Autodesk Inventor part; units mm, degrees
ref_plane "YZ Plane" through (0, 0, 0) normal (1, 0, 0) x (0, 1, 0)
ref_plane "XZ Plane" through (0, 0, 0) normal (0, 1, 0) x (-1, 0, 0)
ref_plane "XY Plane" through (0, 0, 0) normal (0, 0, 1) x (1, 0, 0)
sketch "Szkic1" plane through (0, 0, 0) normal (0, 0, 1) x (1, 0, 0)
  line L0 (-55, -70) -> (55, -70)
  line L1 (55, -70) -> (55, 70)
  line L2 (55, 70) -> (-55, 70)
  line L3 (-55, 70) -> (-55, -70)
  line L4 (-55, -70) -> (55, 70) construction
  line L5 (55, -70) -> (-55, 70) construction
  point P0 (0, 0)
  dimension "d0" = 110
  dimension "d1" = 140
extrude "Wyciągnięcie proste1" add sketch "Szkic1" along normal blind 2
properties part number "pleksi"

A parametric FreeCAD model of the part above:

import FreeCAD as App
import Part
import Sketcher
Q = App.Units.Quantity

doc = App.newDocument("Part")
params = doc.addObject("Spreadsheet::Sheet", "Params")
for row, (alias, value) in enumerate([
    ("sketch1_width", "110 mm"),
    ("sketch1_height", "140 mm"),
    ("pad1_length", "2 mm"),
], start=1):
    params.set(f"A{row}", alias)
    params.set(f"B{row}", "=" + value)
    params.setAlias(f"B{row}", alias)

body = doc.addObject("PartDesign::Body", "Body")

sketch1 = body.newObject("Sketcher::SketchObject", "Sketch")
sketch1.AttachmentSupport = (doc.getObject("XY_Plane"), [""])
sketch1.MapMode = "FlatFace"
sketch1.addGeometry(Part.LineSegment(App.Vector(-55, 70, 0), App.Vector(-55, -70, 0)), False)
sketch1.addGeometry(Part.LineSegment(App.Vector(-55, -70, 0), App.Vector(55, -70, 0)), False)
sketch1.addGeometry(Part.LineSegment(App.Vector(55, -70, 0), App.Vector(55, 70, 0)), False)
sketch1.addGeometry(Part.LineSegment(App.Vector(55, 70, 0), App.Vector(-55, 70, 0)), False)
sketch1.addConstraint(Sketcher.Constraint("Coincident", 0, 2, 1, 1))
sketch1.addConstraint(Sketcher.Constraint("Coincident", 1, 2, 2, 1))
sketch1.addConstraint(Sketcher.Constraint("Coincident", 2, 2, 3, 1))
sketch1.addConstraint(Sketcher.Constraint("Coincident", 3, 2, 0, 1))
sketch1.addConstraint(Sketcher.Constraint("Vertical", 0))
sketch1.addConstraint(Sketcher.Constraint("Horizontal", 1))
sketch1.addConstraint(Sketcher.Constraint("Vertical", 2))
sketch1.addConstraint(Sketcher.Constraint("Horizontal", 3))
sketch1.addConstraint(Sketcher.Constraint("Symmetric", 0, 2, 2, 2, -1, 1))
sketch1.addConstraint(Sketcher.Constraint("DistanceX", 1, 1, 1, 2, Q("110 mm")))
sketch1.addConstraint(Sketcher.Constraint("DistanceY", 0, 2, 0, 1, Q("140 mm")))
sketch1.setExpression("Constraints[9]", "Params.sketch1_width")
sketch1.setExpression("Constraints[10]", "Params.sketch1_height")
pad1 = body.newObject("PartDesign::Pad", "Pad")
pad1.Profile = sketch1
pad1.setExpression("Length", "Params.pad1_length")

doc.recompute()
